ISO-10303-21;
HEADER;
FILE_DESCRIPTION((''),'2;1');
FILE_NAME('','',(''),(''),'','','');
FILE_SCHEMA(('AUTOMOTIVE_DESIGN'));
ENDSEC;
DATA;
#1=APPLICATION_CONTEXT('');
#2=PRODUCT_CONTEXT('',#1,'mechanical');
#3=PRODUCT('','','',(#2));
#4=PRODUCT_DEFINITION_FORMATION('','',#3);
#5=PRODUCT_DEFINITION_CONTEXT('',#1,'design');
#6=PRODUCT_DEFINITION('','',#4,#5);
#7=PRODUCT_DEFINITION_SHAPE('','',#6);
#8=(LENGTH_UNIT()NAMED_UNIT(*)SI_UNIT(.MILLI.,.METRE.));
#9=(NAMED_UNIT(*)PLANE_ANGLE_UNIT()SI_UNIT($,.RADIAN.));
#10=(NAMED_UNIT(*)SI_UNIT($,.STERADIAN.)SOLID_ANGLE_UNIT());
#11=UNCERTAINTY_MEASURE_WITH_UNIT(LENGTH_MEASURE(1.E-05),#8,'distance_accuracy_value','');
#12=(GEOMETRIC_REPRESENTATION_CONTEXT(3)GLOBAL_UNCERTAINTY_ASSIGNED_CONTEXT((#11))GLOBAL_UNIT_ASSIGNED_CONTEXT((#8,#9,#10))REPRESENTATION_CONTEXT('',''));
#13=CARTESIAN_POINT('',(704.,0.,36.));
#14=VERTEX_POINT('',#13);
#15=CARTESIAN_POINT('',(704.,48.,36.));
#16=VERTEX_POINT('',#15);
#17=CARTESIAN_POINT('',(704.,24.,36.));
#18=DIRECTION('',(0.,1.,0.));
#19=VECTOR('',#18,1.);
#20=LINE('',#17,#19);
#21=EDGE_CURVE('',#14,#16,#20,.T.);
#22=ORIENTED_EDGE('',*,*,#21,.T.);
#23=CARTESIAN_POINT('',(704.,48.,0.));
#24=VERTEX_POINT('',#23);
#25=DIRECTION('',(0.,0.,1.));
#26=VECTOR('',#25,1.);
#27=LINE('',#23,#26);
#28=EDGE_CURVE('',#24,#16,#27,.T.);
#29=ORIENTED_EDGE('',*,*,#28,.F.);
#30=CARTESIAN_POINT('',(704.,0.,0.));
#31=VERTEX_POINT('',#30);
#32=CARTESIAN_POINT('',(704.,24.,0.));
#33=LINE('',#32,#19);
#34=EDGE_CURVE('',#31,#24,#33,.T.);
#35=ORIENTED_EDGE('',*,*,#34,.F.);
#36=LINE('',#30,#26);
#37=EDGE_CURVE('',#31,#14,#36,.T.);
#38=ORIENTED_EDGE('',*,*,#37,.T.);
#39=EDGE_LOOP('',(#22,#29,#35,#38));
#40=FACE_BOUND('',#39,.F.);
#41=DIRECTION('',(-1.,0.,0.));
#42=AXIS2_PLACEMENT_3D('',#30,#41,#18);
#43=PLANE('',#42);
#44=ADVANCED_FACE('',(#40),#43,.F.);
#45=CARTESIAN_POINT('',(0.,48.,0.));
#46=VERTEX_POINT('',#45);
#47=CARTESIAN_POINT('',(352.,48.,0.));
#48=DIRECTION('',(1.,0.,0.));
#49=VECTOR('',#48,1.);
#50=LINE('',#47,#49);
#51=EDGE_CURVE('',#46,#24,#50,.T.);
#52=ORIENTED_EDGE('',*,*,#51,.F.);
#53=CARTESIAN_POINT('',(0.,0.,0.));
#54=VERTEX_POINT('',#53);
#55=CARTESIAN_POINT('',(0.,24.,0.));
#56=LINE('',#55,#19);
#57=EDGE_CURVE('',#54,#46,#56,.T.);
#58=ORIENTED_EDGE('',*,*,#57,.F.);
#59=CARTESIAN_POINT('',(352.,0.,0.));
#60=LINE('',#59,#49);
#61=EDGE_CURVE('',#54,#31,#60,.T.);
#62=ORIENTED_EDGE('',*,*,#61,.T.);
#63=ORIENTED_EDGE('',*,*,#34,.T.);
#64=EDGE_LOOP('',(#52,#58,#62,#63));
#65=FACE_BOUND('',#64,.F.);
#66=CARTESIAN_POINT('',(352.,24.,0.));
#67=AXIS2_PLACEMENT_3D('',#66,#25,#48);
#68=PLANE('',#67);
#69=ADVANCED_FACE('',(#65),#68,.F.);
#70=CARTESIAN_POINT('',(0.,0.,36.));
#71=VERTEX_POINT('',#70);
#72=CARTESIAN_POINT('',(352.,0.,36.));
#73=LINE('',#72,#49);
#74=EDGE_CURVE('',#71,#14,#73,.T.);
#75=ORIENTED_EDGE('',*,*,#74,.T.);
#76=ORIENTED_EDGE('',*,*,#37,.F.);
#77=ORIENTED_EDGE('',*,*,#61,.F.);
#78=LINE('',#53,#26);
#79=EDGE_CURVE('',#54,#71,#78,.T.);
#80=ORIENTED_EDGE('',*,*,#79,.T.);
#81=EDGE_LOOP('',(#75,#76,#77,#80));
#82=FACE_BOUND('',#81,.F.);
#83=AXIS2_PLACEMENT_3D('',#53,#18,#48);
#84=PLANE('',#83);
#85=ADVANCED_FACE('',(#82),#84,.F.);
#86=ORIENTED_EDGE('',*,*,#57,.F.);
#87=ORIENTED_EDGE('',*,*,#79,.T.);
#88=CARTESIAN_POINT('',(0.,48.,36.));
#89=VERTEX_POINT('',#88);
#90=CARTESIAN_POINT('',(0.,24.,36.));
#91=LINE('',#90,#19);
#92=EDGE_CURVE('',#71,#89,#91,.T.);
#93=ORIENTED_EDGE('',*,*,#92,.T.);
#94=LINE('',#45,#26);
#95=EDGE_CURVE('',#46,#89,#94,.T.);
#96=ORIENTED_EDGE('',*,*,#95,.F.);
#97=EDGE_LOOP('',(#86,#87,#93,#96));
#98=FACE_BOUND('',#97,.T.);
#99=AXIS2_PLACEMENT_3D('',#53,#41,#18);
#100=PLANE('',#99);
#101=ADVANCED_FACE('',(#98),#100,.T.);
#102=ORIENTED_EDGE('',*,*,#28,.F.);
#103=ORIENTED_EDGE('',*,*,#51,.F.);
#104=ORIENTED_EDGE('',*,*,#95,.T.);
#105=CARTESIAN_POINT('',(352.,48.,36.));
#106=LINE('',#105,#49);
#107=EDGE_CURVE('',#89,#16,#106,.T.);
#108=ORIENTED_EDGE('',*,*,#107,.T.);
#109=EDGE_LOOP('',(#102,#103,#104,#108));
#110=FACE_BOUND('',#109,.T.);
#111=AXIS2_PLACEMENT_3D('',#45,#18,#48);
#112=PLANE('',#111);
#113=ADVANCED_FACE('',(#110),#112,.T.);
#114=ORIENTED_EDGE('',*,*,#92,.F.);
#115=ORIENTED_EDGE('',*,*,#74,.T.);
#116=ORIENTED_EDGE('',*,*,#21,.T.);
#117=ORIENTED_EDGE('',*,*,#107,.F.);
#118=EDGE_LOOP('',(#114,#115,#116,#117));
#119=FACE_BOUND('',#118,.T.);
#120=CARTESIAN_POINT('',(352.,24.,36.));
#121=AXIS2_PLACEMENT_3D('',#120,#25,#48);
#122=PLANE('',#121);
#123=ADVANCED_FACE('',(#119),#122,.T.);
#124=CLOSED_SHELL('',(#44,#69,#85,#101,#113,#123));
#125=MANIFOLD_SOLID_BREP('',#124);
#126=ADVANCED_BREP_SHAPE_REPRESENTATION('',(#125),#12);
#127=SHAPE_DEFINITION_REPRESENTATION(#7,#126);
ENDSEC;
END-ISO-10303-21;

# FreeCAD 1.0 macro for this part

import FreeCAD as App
import Part
import Sketcher
Q = App.Units.Quantity

doc = App.newDocument("Part")
body = doc.addObject("PartDesign::Body", "Body")

# Sketch on XY plane
sketch1 = body.newObject("Sketcher::SketchObject", "Sketch")
sketch1.AttachmentSupport = (doc.getObject("XY_Plane"), [""])
sketch1.MapMode = "FlatFace"
sketch1.addGeometry([
    Part.LineSegment(App.Vector(0, 48, 0), App.Vector(0, 0, 0)),
    Part.LineSegment(App.Vector(0, 0, 0), App.Vector(704, 0, 0)),
    Part.LineSegment(App.Vector(704, 0, 0), App.Vector(704, 48, 0)),
    Part.LineSegment(App.Vector(704, 48, 0), App.Vector(0, 48, 0)),
], False)
sketch1.addConstraint([
    Sketcher.Constraint("Coincident", 0, 2, 1, 1),
    Sketcher.Constraint("Coincident", 1, 2, 2, 1),
    Sketcher.Constraint("Coincident", 2, 2, 3, 1),
    Sketcher.Constraint("Coincident", 3, 2, 0, 1),
    Sketcher.Constraint("Vertical", 0),
    Sketcher.Constraint("Horizontal", 1),
    Sketcher.Constraint("Vertical", 2),
    Sketcher.Constraint("Horizontal", 3),
    Sketcher.Constraint("Coincident", 0, 2, -1, 1),
    Sketcher.Constraint("DistanceX", 1, 1, 1, 2, Q("704 mm")),
    Sketcher.Constraint("DistanceY", 0, 2, 0, 1, Q("48 mm")),
])
pad1 = body.newObject("PartDesign::Pad", "Pad")
pad1.Profile = sketch1
pad1.Length = 36

doc.recompute()
